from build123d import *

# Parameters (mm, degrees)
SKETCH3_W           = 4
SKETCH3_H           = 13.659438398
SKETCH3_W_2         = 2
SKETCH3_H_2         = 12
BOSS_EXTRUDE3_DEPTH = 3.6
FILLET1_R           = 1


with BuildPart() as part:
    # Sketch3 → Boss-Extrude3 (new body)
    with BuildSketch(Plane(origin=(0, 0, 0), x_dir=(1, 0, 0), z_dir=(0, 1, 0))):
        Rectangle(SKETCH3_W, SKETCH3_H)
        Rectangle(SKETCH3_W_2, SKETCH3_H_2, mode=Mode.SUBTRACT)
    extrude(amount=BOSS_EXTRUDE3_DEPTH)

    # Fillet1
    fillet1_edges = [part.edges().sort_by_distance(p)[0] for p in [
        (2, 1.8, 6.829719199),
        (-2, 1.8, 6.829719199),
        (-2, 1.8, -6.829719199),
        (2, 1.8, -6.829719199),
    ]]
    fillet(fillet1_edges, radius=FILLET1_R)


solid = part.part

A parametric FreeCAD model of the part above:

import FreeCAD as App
import Part
import Sketcher


def edges_at(feature, points):
    """Names of the edges that pass closest to the given points."""
    edges = feature.Shape.Edges
    near = lambda p: min(range(len(edges)), key=lambda i: edges[i].distToShape(Part.Vertex(*p))[0])
    return sorted({f"Edge{near(p) + 1}" for p in points})


def add_polygon(sketch, points):
    """Adds a closed chain of lines whose ends are joined by coincident constraints."""
    first, n = sketch.GeometryCount, len(points)
    for a, b in zip(points, points[1:] + points[:1]):
        sketch.addGeometry(Part.LineSegment(App.Vector(*a, 0), App.Vector(*b, 0)), False)
    for i in range(n):
        sketch.addConstraint(Sketcher.Constraint("Coincident", first + i, 2, first + (i + 1) % n, 1))

doc = App.newDocument("Part")
params = doc.addObject("Spreadsheet::Sheet", "Params")
for row, (alias, value) in enumerate([
    ("sketch1_width", "4 mm"),
    ("sketch1_width2", "2 mm"),
    ("sketch1_height", "12 mm"),
    ("pad1_length", "3.6 mm"),
    ("fillet_radius", "1 mm"),
], start=1):
    params.set(f"A{row}", alias)
    params.set(f"B{row}", "=" + value)
    params.setAlias(f"B{row}", alias)

body = doc.addObject("PartDesign::Body", "Body")

# Sketch on XZ plane
sketch1 = body.newObject("Sketcher::SketchObject", "Sketch")
sketch1.AttachmentSupport = (doc.getObject("XZ_Plane"), [""])
sketch1.MapMode = "FlatFace"
add_polygon(sketch1, [(-2, -6.829719), (-2, 6.829719), (2, 6.829719), (2, -6.829719)])  # lines 0-3
add_polygon(sketch1, [(1, 6), (-1, 6), (-1, -6), (1, -6)])  # lines 4-7
sketch1.addConstraint([
    Sketcher.Constraint("Vertical", 0),
    Sketcher.Constraint("Horizontal", 1),
    Sketcher.Constraint("Vertical", 2),
    Sketcher.Constraint("Horizontal", 3),
    Sketcher.Constraint("Horizontal", 4),
    Sketcher.Constraint("Vertical", 5),
    Sketcher.Constraint("Horizontal", 6),
    Sketcher.Constraint("Vertical", 7),
    Sketcher.Constraint("Symmetric", 0, 2, 2, 2, -1, 1),
    Sketcher.Constraint("Symmetric", 4, 2, 6, 2, -1, 1),
    Sketcher.Constraint("DistanceX", 1, 1, 1, 2, 4.0),
    Sketcher.Constraint("DistanceX", 4, 2, 4, 1, 2.0),
    Sketcher.Constraint("DistanceY", 5, 2, 5, 1, 12.0),
    Sketcher.Constraint("DistanceY", 0, 1, 0, 2, 13.659438),
])
sketch1.setExpression("Constraints[18]", "Params.sketch1_width")
sketch1.setExpression("Constraints[19]", "Params.sketch1_width2")
sketch1.setExpression("Constraints[20]", "Params.sketch1_height")
pad1 = body.newObject("PartDesign::Pad", "Pad")
pad1.Profile = sketch1
pad1.setExpression("Length", "Params.pad1_length")
pad1.Reversed = True
doc.recompute()

fillet = body.newObject("PartDesign::Fillet", "Fillet")
fillet.Base = (pad1, edges_at(pad1, [
    (2, 1.8, 6.83),
    (-2, 1.8, 6.83),
    (-2, 1.8, -6.83),
    (2, 1.8, -6.83),
]))
fillet.setExpression("Radius", "Params.fillet_radius")

doc.recompute()
